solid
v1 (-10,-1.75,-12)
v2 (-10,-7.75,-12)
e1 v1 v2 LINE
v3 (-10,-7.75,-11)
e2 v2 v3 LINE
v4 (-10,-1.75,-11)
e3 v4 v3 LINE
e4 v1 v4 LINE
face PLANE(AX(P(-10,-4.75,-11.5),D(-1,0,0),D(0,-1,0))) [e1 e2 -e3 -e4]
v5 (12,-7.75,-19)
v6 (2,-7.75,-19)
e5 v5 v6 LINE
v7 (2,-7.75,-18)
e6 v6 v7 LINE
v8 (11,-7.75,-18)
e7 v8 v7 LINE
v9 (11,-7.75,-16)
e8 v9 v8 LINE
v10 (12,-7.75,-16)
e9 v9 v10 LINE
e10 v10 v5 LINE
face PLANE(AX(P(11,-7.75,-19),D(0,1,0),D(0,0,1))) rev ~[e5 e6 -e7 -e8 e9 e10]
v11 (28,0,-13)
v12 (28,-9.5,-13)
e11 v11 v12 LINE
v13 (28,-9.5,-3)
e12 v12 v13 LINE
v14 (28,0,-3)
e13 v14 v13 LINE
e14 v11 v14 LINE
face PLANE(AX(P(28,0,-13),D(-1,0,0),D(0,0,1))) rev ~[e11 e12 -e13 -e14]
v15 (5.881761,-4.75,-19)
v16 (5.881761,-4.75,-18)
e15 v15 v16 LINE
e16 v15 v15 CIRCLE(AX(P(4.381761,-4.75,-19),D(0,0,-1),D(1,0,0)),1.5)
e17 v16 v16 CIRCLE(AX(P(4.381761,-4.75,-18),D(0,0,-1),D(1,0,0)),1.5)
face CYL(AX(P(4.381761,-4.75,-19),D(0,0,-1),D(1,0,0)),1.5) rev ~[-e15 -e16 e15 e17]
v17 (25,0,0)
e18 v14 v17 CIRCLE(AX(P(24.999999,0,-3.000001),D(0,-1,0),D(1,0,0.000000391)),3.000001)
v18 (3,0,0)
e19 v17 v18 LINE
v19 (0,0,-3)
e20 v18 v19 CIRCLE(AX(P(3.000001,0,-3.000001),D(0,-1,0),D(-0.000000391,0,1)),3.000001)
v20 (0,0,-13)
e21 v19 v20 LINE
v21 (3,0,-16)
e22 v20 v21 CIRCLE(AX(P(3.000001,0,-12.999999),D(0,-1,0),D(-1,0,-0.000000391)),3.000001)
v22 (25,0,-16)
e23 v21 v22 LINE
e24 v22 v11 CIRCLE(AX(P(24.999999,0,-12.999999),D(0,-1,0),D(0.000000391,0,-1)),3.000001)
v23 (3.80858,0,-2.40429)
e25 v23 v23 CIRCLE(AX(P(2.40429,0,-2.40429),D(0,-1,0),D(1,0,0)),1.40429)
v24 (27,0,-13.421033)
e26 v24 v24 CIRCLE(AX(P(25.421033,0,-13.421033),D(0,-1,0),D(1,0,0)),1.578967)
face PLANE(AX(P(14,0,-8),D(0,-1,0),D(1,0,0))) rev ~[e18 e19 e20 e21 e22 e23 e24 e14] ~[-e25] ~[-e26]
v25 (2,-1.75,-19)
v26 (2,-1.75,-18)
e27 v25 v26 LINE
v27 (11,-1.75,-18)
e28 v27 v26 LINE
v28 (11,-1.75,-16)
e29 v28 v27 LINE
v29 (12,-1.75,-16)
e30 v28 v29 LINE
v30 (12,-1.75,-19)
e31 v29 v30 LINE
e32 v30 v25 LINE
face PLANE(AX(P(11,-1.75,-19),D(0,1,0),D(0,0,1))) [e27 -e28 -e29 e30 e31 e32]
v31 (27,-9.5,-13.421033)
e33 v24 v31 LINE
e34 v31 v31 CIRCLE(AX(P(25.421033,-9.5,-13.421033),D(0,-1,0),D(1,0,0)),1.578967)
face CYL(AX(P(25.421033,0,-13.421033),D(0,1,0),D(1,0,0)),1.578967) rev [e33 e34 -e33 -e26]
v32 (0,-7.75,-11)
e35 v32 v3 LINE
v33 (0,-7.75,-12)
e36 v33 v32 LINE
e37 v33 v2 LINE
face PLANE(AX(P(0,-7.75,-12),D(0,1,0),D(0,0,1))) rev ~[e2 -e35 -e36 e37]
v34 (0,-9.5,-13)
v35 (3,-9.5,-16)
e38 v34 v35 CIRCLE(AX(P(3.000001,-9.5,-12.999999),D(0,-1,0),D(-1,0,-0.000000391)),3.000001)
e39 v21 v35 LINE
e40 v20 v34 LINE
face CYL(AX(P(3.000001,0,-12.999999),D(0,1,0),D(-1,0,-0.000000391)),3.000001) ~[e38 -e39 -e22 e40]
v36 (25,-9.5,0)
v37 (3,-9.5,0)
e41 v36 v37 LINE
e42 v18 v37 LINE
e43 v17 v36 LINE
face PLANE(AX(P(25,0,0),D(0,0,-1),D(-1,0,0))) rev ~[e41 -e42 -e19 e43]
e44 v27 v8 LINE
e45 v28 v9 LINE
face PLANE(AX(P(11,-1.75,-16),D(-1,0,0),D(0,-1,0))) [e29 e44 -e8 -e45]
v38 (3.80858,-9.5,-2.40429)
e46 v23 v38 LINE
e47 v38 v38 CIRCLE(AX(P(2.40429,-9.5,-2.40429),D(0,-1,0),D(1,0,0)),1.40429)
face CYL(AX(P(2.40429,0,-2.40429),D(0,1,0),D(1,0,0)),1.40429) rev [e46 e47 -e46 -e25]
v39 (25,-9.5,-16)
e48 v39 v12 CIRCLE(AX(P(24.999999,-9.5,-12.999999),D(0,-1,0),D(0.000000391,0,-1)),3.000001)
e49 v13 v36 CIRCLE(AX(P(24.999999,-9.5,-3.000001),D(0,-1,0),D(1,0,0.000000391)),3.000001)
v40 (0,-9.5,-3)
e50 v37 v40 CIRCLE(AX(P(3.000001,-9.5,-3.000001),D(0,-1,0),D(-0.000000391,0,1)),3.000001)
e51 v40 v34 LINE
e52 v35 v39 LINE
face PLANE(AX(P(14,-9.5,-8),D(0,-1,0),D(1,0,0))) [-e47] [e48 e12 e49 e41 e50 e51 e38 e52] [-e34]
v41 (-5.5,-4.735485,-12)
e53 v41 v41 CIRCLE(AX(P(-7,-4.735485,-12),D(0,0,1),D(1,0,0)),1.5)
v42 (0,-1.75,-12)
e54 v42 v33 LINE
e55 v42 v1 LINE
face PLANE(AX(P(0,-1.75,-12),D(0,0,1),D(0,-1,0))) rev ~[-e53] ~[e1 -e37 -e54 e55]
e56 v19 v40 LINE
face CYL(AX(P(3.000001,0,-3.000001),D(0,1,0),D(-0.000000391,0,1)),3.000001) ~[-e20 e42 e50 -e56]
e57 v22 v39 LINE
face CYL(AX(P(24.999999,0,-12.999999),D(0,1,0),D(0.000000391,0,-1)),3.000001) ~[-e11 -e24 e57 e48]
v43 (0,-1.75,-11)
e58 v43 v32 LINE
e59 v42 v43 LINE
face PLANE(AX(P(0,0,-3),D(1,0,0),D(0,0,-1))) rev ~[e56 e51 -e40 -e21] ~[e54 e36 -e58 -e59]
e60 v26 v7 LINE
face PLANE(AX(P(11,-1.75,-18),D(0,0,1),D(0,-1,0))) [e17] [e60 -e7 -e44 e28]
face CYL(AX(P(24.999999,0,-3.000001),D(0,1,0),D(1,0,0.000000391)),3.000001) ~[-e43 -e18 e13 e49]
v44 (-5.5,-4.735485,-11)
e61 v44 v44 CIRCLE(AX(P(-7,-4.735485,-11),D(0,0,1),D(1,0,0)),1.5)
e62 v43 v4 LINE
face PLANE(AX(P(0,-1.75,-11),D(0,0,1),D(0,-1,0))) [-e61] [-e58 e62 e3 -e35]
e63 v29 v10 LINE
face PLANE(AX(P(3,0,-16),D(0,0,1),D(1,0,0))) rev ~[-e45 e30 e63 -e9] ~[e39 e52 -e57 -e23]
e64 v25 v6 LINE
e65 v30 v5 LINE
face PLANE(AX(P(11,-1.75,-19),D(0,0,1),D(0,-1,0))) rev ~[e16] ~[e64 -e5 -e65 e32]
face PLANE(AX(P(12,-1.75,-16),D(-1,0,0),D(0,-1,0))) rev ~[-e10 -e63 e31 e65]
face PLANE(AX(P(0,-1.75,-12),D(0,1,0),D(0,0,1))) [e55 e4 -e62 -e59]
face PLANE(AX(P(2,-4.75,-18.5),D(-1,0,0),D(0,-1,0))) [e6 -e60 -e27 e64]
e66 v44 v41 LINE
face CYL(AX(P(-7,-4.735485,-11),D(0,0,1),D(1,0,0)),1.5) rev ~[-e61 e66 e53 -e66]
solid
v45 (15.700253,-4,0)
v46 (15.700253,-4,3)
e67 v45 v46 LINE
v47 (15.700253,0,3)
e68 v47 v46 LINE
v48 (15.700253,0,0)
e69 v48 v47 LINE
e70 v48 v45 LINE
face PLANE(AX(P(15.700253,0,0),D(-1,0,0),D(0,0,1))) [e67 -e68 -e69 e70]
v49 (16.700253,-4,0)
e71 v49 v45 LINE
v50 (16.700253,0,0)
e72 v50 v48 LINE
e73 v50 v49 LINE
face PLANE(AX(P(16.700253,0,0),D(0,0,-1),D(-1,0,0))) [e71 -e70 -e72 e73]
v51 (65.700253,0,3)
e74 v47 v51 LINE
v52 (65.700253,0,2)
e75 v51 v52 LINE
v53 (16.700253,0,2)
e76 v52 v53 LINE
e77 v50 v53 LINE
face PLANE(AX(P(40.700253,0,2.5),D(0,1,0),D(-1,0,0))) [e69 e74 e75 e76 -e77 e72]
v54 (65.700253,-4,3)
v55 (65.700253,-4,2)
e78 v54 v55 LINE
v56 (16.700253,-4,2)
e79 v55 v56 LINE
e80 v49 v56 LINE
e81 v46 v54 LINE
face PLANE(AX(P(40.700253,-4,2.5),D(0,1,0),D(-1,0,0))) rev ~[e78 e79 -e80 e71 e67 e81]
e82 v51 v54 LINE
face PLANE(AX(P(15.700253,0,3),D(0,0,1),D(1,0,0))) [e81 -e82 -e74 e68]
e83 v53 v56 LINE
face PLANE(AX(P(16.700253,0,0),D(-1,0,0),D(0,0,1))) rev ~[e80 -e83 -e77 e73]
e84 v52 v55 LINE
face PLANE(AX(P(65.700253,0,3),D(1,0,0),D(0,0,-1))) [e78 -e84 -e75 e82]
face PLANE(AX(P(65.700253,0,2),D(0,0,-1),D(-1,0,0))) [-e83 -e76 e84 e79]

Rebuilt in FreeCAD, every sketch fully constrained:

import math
import FreeCAD as App
import Part
import Sketcher
from FreeCAD import Vector

doc = App.newDocument("Part")
body = doc.addObject("PartDesign::Body", "Body")

# Sketch on XZ plane
sketch1 = body.newObject("Sketcher::SketchObject", "Sketch")
sketch1.AttachmentSupport = (doc.getObject("XZ_Plane"), [""])
sketch1.MapMode = "FlatFace"
sketch1.addGeometry([
    Part.LineSegment(Vector(25, 0, 0), Vector(3, 0, 0)),  # 0
    Part.ArcOfCircle(Part.Circle(Vector(3, -3, 0), Vector(0, 0, 1), 3), math.radians(90), math.radians(180)),  # 1
    Part.LineSegment(Vector(0, -3, 0), Vector(0, -13, 0)),  # 2
    Part.ArcOfCircle(Part.Circle(Vector(3, -13, 0), Vector(0, 0, 1), 3), math.radians(-180), math.radians(-90)),  # 3
    Part.LineSegment(Vector(3, -16, 0), Vector(25, -16, 0)),  # 4
    Part.ArcOfCircle(Part.Circle(Vector(25, -13, 0), Vector(0, 0, 1), 3), math.radians(-90), math.radians(0)),  # 5
    Part.LineSegment(Vector(28, -13, 0), Vector(28, -3, 0)),  # 6
    Part.ArcOfCircle(Part.Circle(Vector(25, -3, 0), Vector(0, 0, 1), 3), math.radians(0), math.radians(90)),  # 7
    Part.Circle(Vector(25.4, -13.4, 0), Vector(0, 0, 1), 1.6),  # 8
    Part.Circle(Vector(2.4, -2.4, 0), Vector(0, 0, 1), 1.4),  # 9
], False)
sketch1.addConstraint([
    Sketcher.Constraint("Tangent", 0, 2, 1, 1),
    Sketcher.Constraint("Tangent", 1, 2, 2, 1),
    Sketcher.Constraint("Tangent", 2, 2, 3, 1),
    Sketcher.Constraint("Tangent", 3, 2, 4, 1),
    Sketcher.Constraint("Tangent", 4, 2, 5, 1),
    Sketcher.Constraint("Tangent", 5, 2, 6, 1),
    Sketcher.Constraint("Tangent", 6, 2, 7, 1),
    Sketcher.Constraint("Tangent", 7, 2, 0, 1),
    Sketcher.Constraint("Horizontal", 0),
    Sketcher.Constraint("Vertical", 2),
    Sketcher.Constraint("Horizontal", 4),
    Sketcher.Constraint("Vertical", 6),
    Sketcher.Constraint("Equal", 1, 3),
    Sketcher.Constraint("Equal", 3, 5),
    Sketcher.Constraint("Equal", 5, 7),
    Sketcher.Constraint("PointOnObject", 0, 2, -1),
    Sketcher.Constraint("PointOnObject", 1, 2, -2),
    Sketcher.Constraint("Radius", 1, 3.000001),
    Sketcher.Constraint("DistanceX", 0, 2, 0, 1, 22.0),
    Sketcher.Constraint("DistanceY", 2, 2, 2, 1, 10.0),
    Sketcher.Constraint("Diameter", 9, 2.80858),
    Sketcher.Constraint("Diameter", 8, 3.157934),
    Sketcher.Constraint("DistanceX", -1, 1, 9, 3, 2.40429),
    Sketcher.Constraint("DistanceY", 9, 3, -1, 1, 2.40429),
    Sketcher.Constraint("DistanceY", 8, 3, 7, 3, 10.421032),
    Sketcher.Constraint("DistanceX", 3, 3, 8, 3, 22.421032),
])
pad1 = body.newObject("PartDesign::Pad", "Pad")
pad1.Profile = sketch1
pad1.Length = 9.5

# Sketch on YZ plane
sketch2 = body.newObject("Sketcher::SketchObject", "Sketch001")
sketch2.AttachmentSupport = (doc.getObject("YZ_Plane"), [""])
sketch2.MapMode = "FlatFace"
sketch2.addGeometry([
    Part.LineSegment(Vector(-1.8, -11, 0), Vector(-1.8, -12, 0)),
    Part.LineSegment(Vector(-1.8, -12, 0), Vector(-7.8, -12, 0)),
    Part.LineSegment(Vector(-7.8, -12, 0), Vector(-7.8, -11, 0)),
    Part.LineSegment(Vector(-7.8, -11, 0), Vector(-1.8, -11, 0)),
], False)
sketch2.addConstraint([
    Sketcher.Constraint("Coincident", 0, 2, 1, 1),
    Sketcher.Constraint("Coincident", 1, 2, 2, 1),
    Sketcher.Constraint("Coincident", 2, 2, 3, 1),
    Sketcher.Constraint("Coincident", 3, 2, 0, 1),
    Sketcher.Constraint("Vertical", 0),
    Sketcher.Constraint("Horizontal", 1),
    Sketcher.Constraint("Vertical", 2),
    Sketcher.Constraint("Horizontal", 3),
    Sketcher.Constraint("DistanceX", 1, 2, 1, 1, 6.0),
    Sketcher.Constraint("DistanceY", 0, 2, 0, 1, 1.0),
    Sketcher.Constraint("DistanceY", 0, 2, -1, 1, 12.0),
    Sketcher.Constraint("DistanceX", 0, 2, -1, 1, 1.75),
])
pad2 = body.newObject("PartDesign::Pad", "Pad001")
pad2.Profile = sketch2
pad2.Length = 10
pad2.Reversed = True

# Sketch on XY plane
sketch3 = body.newObject("Sketcher::SketchObject", "Sketch002")
sketch3.AttachmentSupport = (doc.getObject("XY_Plane"), [""])
sketch3.MapMode = "FlatFace"
sketch3.AttachmentOffset = App.Placement(Vector(0, 0, -11), App.Rotation())
sketch3.addGeometry(Part.Circle(Vector(-7, -4.7, 0), Vector(0, 0, 1), 1.5), False)
sketch3.addConstraint([
    Sketcher.Constraint("Diameter", 0, 3.0),
    Sketcher.Constraint("DistanceX", 0, 3, -1, 1, 7.0),
    Sketcher.Constraint("DistanceY", 0, 3, -1, 1, 4.735485),
])
pocket1 = body.newObject("PartDesign::Pocket", "Pocket")
pocket1.Profile = sketch3
pocket1.Length = 25

# Sketch on XY plane
sketch4 = body.newObject("Sketcher::SketchObject", "Sketch003")
sketch4.AttachmentSupport = (doc.getObject("XY_Plane"), [""])
sketch4.MapMode = "FlatFace"
sketch4.AttachmentOffset = App.Placement(Vector(0, 0, -16), App.Rotation())
sketch4.addGeometry([
    Part.LineSegment(Vector(11, -7.8, 0), Vector(11, -1.8, 0)),
    Part.LineSegment(Vector(11, -1.8, 0), Vector(12, -1.8, 0)),
    Part.LineSegment(Vector(12, -1.8, 0), Vector(12, -7.8, 0)),
    Part.LineSegment(Vector(12, -7.8, 0), Vector(11, -7.8, 0)),
], False)
sketch4.addConstraint([
    Sketcher.Constraint("Coincident", 0, 2, 1, 1),
    Sketcher.Constraint("Coincident", 1, 2, 2, 1),
    Sketcher.Constraint("Coincident", 2, 2, 3, 1),
    Sketcher.Constraint("Coincident", 3, 2, 0, 1),
    Sketcher.Constraint("Vertical", 0),
    Sketcher.Constraint("Horizontal", 1),
    Sketcher.Constraint("Vertical", 2),
    Sketcher.Constraint("Horizontal", 3),
    Sketcher.Constraint("DistanceX", 1, 1, 1, 2, 1.0),
    Sketcher.Constraint("DistanceY", 0, 1, 0, 2, 6.0),
    Sketcher.Constraint("DistanceX", -1, 1, 0, 2, 11.0),
    Sketcher.Constraint("DistanceY", 0, 2, -1, 1, 1.75),
])
pad3 = body.newObject("PartDesign::Pad", "Pad002")
pad3.Profile = sketch4
pad3.Length = 3
pad3.Reversed = True

# Sketch on YZ plane
sketch5 = body.newObject("Sketcher::SketchObject", "Sketch004")
sketch5.AttachmentSupport = (doc.getObject("YZ_Plane"), [""])
sketch5.MapMode = "FlatFace"
sketch5.AttachmentOffset = App.Placement(Vector(0, 0, 11), App.Rotation())
sketch5.addGeometry([
    Part.LineSegment(Vector(-1.8, -18, 0), Vector(-1.8, -19, 0)),
    Part.LineSegment(Vector(-1.8, -19, 0), Vector(-7.8, -19, 0)),
    Part.LineSegment(Vector(-7.8, -19, 0), Vector(-7.8, -18, 0)),
    Part.LineSegment(Vector(-7.8, -18, 0), Vector(-1.8, -18, 0)),
], False)
sketch5.addConstraint([
    Sketcher.Constraint("Coincident", 0, 2, 1, 1),
    Sketcher.Constraint("Coincident", 1, 2, 2, 1),
    Sketcher.Constraint("Coincident", 2, 2, 3, 1),
    Sketcher.Constraint("Coincident", 3, 2, 0, 1),
    Sketcher.Constraint("Vertical", 0),
    Sketcher.Constraint("Horizontal", 1),
    Sketcher.Constraint("Vertical", 2),
    Sketcher.Constraint("Horizontal", 3),
    Sketcher.Constraint("DistanceX", 1, 2, 1, 1, 6.0),
    Sketcher.Constraint("DistanceY", 0, 2, 0, 1, 1.0),
    Sketcher.Constraint("DistanceY", 0, 2, -1, 1, 19.0),
    Sketcher.Constraint("DistanceX", 0, 2, -1, 1, 1.75),
])
pad4 = body.newObject("PartDesign::Pad", "Pad003")
pad4.Profile = sketch5
pad4.Length = 9
pad4.Reversed = True

# Sketch on XY plane
sketch6 = body.newObject("Sketcher::SketchObject", "Sketch005")
sketch6.AttachmentSupport = (doc.getObject("XY_Plane"), [""])
sketch6.MapMode = "FlatFace"
sketch6.AttachmentOffset = App.Placement(Vector(0, 0, -19), App.Rotation())
sketch6.addGeometry(Part.Circle(Vector(4.4, -4.8, 0), Vector(0, 0, 1), 1.5), False)
sketch6.addConstraint([
    Sketcher.Constraint("Diameter", 0, 3.0),
    Sketcher.Constraint("DistanceY", 0, 3, -1, 1, 4.75),
    Sketcher.Constraint("DistanceX", -1, 1, 0, 3, 4.381761),
])
pocket2 = body.newObject("PartDesign::Pocket", "Pocket001")
pocket2.Profile = sketch6
pocket2.Length = 1
pocket2.Reversed = True
body2 = doc.addObject("PartDesign::Body", "Body001")

# Sketch on XZ plane
sketch7 = body2.newObject("Sketcher::SketchObject", "Sketch006")
sketch7.AttachmentSupport = (doc.getObject("XZ_Plane001"), [""])
sketch7.MapMode = "FlatFace"
sketch7.addGeometry([
    Part.LineSegment(Vector(15.7, 3, 0), Vector(65.7, 3, 0)),  # 0
    Part.LineSegment(Vector(65.7, 3, 0), Vector(65.7, 2, 0)),  # 1
    Part.LineSegment(Vector(65.7, 2, 0), Vector(16.7, 2, 0)),  # 2
    Part.LineSegment(Vector(16.7, 2, 0), Vector(16.7, 0, 0)),  # 3
    Part.LineSegment(Vector(16.7, 0, 0), Vector(15.7, 0, 0)),  # 4
    Part.LineSegment(Vector(15.7, 0, 0), Vector(15.7, 3, 0)),  # 5
], False)
sketch7.addConstraint([
    Sketcher.Constraint("Coincident", 0, 2, 1, 1),
    Sketcher.Constraint("Coincident", 1, 2, 2, 1),
    Sketcher.Constraint("Coincident", 2, 2, 3, 1),
    Sketcher.Constraint("Coincident", 3, 2, 4, 1),
    Sketcher.Constraint("Coincident", 4, 2, 5, 1),
    Sketcher.Constraint("Coincident", 5, 2, 0, 1),
    Sketcher.Constraint("Horizontal", 0),
    Sketcher.Constraint("Vertical", 1),
    Sketcher.Constraint("Horizontal", 2),
    Sketcher.Constraint("Vertical", 3),
    Sketcher.Constraint("Horizontal", 4),
    Sketcher.Constraint("Vertical", 5),
    Sketcher.Constraint("PointOnObject", 3, 2, -1),
    Sketcher.Constraint("Equal", 4, 1),
    Sketcher.Constraint("DistanceX", 0, 1, 0, 2, 50.0),
    Sketcher.Constraint("DistanceX", 2, 2, 2, 1, 49.0),
    Sketcher.Constraint("DistanceY", 3, 2, 3, 1, 2.0),
    Sketcher.Constraint("DistanceX", -1, 1, 0, 2, 65.700253),
])
pad5 = body2.newObject("PartDesign::Pad", "Pad004")
pad5.Profile = sketch7
pad5.Length = 4

doc.recompute()
